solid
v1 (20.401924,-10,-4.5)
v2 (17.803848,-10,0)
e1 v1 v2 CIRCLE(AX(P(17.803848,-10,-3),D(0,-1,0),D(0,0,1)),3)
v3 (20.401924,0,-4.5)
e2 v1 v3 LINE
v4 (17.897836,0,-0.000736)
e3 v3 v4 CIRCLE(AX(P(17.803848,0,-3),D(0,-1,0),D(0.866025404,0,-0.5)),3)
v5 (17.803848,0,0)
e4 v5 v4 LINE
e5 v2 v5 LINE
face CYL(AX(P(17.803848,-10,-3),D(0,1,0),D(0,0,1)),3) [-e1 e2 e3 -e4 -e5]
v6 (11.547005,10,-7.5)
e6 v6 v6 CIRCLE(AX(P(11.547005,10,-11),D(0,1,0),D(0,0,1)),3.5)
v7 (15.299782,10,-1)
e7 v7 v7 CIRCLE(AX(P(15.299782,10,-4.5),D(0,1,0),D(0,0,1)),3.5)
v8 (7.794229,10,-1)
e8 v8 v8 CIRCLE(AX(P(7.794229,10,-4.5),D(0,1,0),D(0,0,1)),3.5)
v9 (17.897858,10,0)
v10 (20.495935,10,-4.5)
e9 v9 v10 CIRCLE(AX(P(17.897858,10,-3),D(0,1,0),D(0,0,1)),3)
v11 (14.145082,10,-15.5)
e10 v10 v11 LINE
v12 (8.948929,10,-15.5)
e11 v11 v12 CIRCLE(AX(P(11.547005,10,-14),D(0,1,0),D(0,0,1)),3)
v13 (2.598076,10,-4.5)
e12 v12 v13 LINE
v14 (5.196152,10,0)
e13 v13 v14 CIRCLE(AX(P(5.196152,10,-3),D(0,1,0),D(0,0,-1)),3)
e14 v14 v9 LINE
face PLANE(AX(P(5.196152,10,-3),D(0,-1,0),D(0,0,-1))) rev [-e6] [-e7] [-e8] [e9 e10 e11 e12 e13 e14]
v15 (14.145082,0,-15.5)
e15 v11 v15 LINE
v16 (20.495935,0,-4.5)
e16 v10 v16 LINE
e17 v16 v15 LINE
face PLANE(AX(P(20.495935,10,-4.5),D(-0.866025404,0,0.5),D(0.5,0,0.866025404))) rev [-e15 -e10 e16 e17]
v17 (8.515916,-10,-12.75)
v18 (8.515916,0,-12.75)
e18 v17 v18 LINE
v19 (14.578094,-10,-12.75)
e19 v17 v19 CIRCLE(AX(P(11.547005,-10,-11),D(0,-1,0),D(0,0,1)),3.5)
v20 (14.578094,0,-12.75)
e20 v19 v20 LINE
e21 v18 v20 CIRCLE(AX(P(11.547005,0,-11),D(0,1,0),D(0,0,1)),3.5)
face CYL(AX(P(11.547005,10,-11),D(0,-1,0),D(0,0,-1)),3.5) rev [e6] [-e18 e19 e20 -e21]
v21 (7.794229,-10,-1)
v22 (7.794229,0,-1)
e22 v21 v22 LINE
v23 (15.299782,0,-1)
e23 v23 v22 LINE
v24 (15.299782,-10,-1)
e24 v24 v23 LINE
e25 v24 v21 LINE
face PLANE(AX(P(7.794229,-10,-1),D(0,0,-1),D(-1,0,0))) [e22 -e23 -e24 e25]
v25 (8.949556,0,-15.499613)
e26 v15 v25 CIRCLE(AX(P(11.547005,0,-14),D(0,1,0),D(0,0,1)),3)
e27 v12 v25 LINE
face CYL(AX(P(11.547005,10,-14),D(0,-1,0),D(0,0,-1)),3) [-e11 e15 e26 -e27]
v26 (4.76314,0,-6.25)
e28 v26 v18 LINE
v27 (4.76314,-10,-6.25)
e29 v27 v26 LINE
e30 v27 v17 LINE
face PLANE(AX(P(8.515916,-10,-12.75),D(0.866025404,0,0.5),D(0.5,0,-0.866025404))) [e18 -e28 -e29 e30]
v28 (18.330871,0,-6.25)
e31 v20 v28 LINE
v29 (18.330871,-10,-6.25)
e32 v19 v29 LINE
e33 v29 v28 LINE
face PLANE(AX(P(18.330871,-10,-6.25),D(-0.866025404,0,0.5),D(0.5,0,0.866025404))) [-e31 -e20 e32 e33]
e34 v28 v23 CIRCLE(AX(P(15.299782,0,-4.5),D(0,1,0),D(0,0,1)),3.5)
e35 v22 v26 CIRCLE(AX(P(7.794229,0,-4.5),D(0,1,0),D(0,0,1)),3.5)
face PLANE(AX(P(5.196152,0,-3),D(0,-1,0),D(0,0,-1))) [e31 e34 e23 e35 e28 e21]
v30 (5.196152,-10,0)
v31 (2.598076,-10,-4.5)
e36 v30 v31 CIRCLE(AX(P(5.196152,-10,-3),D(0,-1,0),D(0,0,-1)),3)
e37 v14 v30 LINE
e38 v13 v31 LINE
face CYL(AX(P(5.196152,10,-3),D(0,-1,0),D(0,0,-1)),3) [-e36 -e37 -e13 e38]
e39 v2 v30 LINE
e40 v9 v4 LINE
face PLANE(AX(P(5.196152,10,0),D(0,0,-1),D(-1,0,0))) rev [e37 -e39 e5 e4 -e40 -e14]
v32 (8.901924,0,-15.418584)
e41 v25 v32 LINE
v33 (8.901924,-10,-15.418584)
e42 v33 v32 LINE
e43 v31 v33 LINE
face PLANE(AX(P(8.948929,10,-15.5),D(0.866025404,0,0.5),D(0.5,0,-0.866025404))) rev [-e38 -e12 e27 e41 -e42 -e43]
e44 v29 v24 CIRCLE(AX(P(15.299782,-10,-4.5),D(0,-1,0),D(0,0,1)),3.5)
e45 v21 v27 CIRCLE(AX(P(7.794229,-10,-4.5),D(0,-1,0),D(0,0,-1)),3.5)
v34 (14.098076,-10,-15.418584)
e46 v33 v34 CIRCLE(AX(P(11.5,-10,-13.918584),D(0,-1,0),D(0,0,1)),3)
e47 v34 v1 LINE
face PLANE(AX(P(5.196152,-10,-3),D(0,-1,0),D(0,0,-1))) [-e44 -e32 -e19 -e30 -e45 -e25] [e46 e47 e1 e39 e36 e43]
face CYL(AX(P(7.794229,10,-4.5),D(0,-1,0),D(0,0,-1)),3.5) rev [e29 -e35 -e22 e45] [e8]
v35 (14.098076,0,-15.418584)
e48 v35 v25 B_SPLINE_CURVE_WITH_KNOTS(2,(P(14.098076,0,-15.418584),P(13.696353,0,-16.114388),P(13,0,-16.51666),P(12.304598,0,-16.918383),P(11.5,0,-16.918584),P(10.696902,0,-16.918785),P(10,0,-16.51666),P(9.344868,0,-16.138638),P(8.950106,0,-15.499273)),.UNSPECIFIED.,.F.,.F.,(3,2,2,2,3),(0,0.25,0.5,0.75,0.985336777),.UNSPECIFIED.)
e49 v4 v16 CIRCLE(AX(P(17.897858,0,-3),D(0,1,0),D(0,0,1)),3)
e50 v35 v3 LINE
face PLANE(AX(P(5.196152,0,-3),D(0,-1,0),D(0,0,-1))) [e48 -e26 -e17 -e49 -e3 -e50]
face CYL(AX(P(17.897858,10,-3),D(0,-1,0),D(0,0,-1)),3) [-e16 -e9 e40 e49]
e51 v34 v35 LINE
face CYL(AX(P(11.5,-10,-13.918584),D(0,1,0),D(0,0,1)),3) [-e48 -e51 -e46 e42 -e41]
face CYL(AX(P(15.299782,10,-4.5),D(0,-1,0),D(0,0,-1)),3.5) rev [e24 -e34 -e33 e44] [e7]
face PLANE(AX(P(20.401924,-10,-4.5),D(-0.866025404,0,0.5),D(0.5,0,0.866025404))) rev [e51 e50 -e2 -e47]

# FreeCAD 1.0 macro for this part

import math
import FreeCAD as App
import Part
import Sketcher
Q = App.Units.Quantity

doc = App.newDocument("Part")
params = doc.addObject("Spreadsheet::Sheet", "Params")
for row, (alias, value) in enumerate([
    ("sketch1_diameter", "7 mm"),
    ("sketch1_radius", "3 mm"),
    ("pad1_length", "10 mm"),
    ("sketch2_radius", "3 mm"),
    ("sketch2_radius2", "3.5 mm"),
    ("pad2_length", "10 mm"),
], start=1):
    params.set(f"A{row}", alias)
    params.set(f"B{row}", "=" + value)
    params.setAlias(f"B{row}", alias)

body = doc.addObject("PartDesign::Body", "Body")

sketch1 = doc.addObject("Sketcher::SketchObject", "Sketch")
body.addObject(sketch1)
sketch1.AttachmentSupport = (doc.XZ_Plane, [""])
sketch1.MapMode = "FlatFace"
sketch1.addGeometry([
    Part.LineSegment(App.Vector(5.2, 0, 0), App.Vector(17.9, 0, 0)),
    Part.ArcOfCircle(Part.Circle(App.Vector(17.9, -3, 0), App.Vector(0, 0, 1), 3), math.radians(-30), math.radians(90)),
    Part.LineSegment(App.Vector(20.5, -4.5, 0), App.Vector(14.1, -15.5, 0)),
    Part.ArcOfCircle(Part.Circle(App.Vector(11.5, -14, 0), App.Vector(0, 0, 1), 3), math.radians(-150), math.radians(-30)),
    Part.LineSegment(App.Vector(8.9, -15.5, 0), App.Vector(2.6, -4.5, 0)),
    Part.ArcOfCircle(Part.Circle(App.Vector(5.2, -3, 0), App.Vector(0, 0, 1), 3), math.radians(90), math.radians(210)),
    Part.Circle(App.Vector(7.8, -4.5, 0), App.Vector(0, 0, 1), 3.5),
    Part.Circle(App.Vector(15.3, -4.5, 0), App.Vector(0, 0, 1), 3.5),
    Part.Circle(App.Vector(11.5, -11, 0), App.Vector(0, 0, 1), 3.5),
], False)
sketch1.addConstraint([
    Sketcher.Constraint("Tangent", 0, 2, 1, 2),
    Sketcher.Constraint("Tangent", 1, 1, 2, 1),
    Sketcher.Constraint("Tangent", 2, 2, 3, 2),
    Sketcher.Constraint("Tangent", 3, 1, 4, 1),
    Sketcher.Constraint("Tangent", 4, 2, 5, 2),
    Sketcher.Constraint("Tangent", 5, 1, 0, 1),
    Sketcher.Constraint("Horizontal", 0),
    Sketcher.Constraint("Equal", 1, 3),
    Sketcher.Constraint("Equal", 3, 5),
    Sketcher.Constraint("Equal", 6, 7),
    Sketcher.Constraint("Equal", 7, 8),
    Sketcher.Constraint("PointOnObject", 0, 2, -1),
    Sketcher.Constraint("Horizontal", 6, 3, 7, 3),
    Sketcher.Constraint("Horizontal", 7, 3, 1, 1),
    Sketcher.Constraint("Horizontal", 2, 2, 3, 1),
    Sketcher.Constraint("Vertical", 3, 3, 8, 3),
    Sketcher.Constraint("Diameter", 6, 7.0),
    Sketcher.Constraint("Radius", 1, 3.0),
    Sketcher.Constraint("Angle", 2, Q("-120 deg")),
    Sketcher.Constraint("DistanceY", 3, 3, -1, 1, 14.0),
    Sketcher.Constraint("DistanceY", 8, 3, -1, 1, 11.0),
    Sketcher.Constraint("DistanceX", 2, 2, 7, 3, 1.154701),
    Sketcher.Constraint("DistanceX", 6, 3, 3, 1, 1.154701),
    Sketcher.Constraint("DistanceX", -1, 1, 1, 3, 17.897858),
])
sketch1.setExpression("Constraints[16]", "Params.sketch1_diameter")
sketch1.setExpression("Constraints[17]", "Params.sketch1_radius")
pad1 = doc.addObject("PartDesign::Pad", "Pad")
body.addObject(pad1)
pad1.Profile = sketch1
pad1.setExpression("Length", "Params.pad1_length")
pad1.Reversed = True

sketch2 = doc.addObject("Sketcher::SketchObject", "Sketch001")
body.addObject(sketch2)
sketch2.AttachmentSupport = (doc.XZ_Plane, [""])
sketch2.MapMode = "FlatFace"
sketch2.AttachmentOffset = App.Placement(App.Vector(0, 0, 10), App.Rotation())
sketch2.addGeometry([
    Part.LineSegment(App.Vector(17.8, 0, 0), App.Vector(5.2, 0, 0)),
    Part.ArcOfCircle(Part.Circle(App.Vector(5.2, -3, 0), App.Vector(0, 0, 1), 3), math.radians(90), math.radians(210)),
    Part.LineSegment(App.Vector(2.6, -4.5, 0), App.Vector(8.9, -15.4, 0)),
    Part.ArcOfCircle(Part.Circle(App.Vector(11.5, -13.9, 0), App.Vector(0, 0, 1), 3), math.radians(-150), math.radians(-30)),
    Part.LineSegment(App.Vector(14.1, -15.4, 0), App.Vector(20.4, -4.5, 0)),
    Part.ArcOfCircle(Part.Circle(App.Vector(17.8, -3, 0), App.Vector(0, 0, 1), 3), math.radians(-30), math.radians(90)),
    Part.LineSegment(App.Vector(7.8, -1, 0), App.Vector(15.3, -1, 0)),
    Part.ArcOfCircle(Part.Circle(App.Vector(15.3, -4.5, 0), App.Vector(0, 0, 1), 3.5), math.radians(-30), math.radians(90)),
    Part.LineSegment(App.Vector(18.3, -6.2, 0), App.Vector(14.6, -12.8, 0)),
    Part.ArcOfCircle(Part.Circle(App.Vector(11.5, -11, 0), App.Vector(0, 0, 1), 3.5), math.radians(-150), math.radians(-30)),
    Part.LineSegment(App.Vector(8.5, -12.8, 0), App.Vector(4.8, -6.2, 0)),
    Part.ArcOfCircle(Part.Circle(App.Vector(7.8, -4.5, 0), App.Vector(0, 0, 1), 3.5), math.radians(90), math.radians(210)),
], False)
sketch2.addConstraint([
    Sketcher.Constraint("Tangent", 0, 2, 1, 1),
    Sketcher.Constraint("Tangent", 1, 2, 2, 1),
    Sketcher.Constraint("Tangent", 2, 2, 3, 1),
    Sketcher.Constraint("Tangent", 3, 2, 4, 1),
    Sketcher.Constraint("Tangent", 4, 2, 5, 1),
    Sketcher.Constraint("Tangent", 5, 2, 0, 1),
    Sketcher.Constraint("Tangent", 6, 2, 7, 2),
    Sketcher.Constraint("Tangent", 7, 1, 8, 1),
    Sketcher.Constraint("Tangent", 8, 2, 9, 2),
    Sketcher.Constraint("Tangent", 9, 1, 10, 1),
    Sketcher.Constraint("Tangent", 10, 2, 11, 2),
    Sketcher.Constraint("Tangent", 11, 1, 6, 1),
    Sketcher.Constraint("Horizontal", 0),
    Sketcher.Constraint("Horizontal", 6),
    Sketcher.Constraint("Equal", 1, 3),
    Sketcher.Constraint("Equal", 3, 5),
    Sketcher.Constraint("Equal", 7, 9),
    Sketcher.Constraint("Equal", 9, 11),
    Sketcher.Constraint("PointOnObject", 0, 2, -1),
    Sketcher.Constraint("Parallel", 4, 8),
    Sketcher.Constraint("Parallel", 2, 10),
    Sketcher.Constraint("Horizontal", 11, 3, 1, 2),
    Sketcher.Constraint("Horizontal", 2, 2, 3, 2),
    Sketcher.Constraint("Radius", 1, 3.0),
    Sketcher.Constraint("Radius", 7, 3.5),
    Sketcher.Constraint("Angle", 2, Q("-60 deg")),
    Sketcher.Constraint("DistanceY", 9, 3, -1, 1, 11.0),
    Sketcher.Constraint("DistanceX", -1, 1, 3, 3, 11.5),
    Sketcher.Constraint("DistanceX", 0, 2, 0, 1, 12.607695),
    Sketcher.Constraint("DistanceX", -1, 1, 11, 3, 7.794229),
])
sketch2.setExpression("Constraints[23]", "Params.sketch2_radius")
sketch2.setExpression("Constraints[24]", "Params.sketch2_radius2")
pad2 = doc.addObject("PartDesign::Pad", "Pad001")
body.addObject(pad2)
pad2.Profile = sketch2
pad2.setExpression("Length", "Params.pad2_length")
pad2.Reversed = True

doc.recompute()
